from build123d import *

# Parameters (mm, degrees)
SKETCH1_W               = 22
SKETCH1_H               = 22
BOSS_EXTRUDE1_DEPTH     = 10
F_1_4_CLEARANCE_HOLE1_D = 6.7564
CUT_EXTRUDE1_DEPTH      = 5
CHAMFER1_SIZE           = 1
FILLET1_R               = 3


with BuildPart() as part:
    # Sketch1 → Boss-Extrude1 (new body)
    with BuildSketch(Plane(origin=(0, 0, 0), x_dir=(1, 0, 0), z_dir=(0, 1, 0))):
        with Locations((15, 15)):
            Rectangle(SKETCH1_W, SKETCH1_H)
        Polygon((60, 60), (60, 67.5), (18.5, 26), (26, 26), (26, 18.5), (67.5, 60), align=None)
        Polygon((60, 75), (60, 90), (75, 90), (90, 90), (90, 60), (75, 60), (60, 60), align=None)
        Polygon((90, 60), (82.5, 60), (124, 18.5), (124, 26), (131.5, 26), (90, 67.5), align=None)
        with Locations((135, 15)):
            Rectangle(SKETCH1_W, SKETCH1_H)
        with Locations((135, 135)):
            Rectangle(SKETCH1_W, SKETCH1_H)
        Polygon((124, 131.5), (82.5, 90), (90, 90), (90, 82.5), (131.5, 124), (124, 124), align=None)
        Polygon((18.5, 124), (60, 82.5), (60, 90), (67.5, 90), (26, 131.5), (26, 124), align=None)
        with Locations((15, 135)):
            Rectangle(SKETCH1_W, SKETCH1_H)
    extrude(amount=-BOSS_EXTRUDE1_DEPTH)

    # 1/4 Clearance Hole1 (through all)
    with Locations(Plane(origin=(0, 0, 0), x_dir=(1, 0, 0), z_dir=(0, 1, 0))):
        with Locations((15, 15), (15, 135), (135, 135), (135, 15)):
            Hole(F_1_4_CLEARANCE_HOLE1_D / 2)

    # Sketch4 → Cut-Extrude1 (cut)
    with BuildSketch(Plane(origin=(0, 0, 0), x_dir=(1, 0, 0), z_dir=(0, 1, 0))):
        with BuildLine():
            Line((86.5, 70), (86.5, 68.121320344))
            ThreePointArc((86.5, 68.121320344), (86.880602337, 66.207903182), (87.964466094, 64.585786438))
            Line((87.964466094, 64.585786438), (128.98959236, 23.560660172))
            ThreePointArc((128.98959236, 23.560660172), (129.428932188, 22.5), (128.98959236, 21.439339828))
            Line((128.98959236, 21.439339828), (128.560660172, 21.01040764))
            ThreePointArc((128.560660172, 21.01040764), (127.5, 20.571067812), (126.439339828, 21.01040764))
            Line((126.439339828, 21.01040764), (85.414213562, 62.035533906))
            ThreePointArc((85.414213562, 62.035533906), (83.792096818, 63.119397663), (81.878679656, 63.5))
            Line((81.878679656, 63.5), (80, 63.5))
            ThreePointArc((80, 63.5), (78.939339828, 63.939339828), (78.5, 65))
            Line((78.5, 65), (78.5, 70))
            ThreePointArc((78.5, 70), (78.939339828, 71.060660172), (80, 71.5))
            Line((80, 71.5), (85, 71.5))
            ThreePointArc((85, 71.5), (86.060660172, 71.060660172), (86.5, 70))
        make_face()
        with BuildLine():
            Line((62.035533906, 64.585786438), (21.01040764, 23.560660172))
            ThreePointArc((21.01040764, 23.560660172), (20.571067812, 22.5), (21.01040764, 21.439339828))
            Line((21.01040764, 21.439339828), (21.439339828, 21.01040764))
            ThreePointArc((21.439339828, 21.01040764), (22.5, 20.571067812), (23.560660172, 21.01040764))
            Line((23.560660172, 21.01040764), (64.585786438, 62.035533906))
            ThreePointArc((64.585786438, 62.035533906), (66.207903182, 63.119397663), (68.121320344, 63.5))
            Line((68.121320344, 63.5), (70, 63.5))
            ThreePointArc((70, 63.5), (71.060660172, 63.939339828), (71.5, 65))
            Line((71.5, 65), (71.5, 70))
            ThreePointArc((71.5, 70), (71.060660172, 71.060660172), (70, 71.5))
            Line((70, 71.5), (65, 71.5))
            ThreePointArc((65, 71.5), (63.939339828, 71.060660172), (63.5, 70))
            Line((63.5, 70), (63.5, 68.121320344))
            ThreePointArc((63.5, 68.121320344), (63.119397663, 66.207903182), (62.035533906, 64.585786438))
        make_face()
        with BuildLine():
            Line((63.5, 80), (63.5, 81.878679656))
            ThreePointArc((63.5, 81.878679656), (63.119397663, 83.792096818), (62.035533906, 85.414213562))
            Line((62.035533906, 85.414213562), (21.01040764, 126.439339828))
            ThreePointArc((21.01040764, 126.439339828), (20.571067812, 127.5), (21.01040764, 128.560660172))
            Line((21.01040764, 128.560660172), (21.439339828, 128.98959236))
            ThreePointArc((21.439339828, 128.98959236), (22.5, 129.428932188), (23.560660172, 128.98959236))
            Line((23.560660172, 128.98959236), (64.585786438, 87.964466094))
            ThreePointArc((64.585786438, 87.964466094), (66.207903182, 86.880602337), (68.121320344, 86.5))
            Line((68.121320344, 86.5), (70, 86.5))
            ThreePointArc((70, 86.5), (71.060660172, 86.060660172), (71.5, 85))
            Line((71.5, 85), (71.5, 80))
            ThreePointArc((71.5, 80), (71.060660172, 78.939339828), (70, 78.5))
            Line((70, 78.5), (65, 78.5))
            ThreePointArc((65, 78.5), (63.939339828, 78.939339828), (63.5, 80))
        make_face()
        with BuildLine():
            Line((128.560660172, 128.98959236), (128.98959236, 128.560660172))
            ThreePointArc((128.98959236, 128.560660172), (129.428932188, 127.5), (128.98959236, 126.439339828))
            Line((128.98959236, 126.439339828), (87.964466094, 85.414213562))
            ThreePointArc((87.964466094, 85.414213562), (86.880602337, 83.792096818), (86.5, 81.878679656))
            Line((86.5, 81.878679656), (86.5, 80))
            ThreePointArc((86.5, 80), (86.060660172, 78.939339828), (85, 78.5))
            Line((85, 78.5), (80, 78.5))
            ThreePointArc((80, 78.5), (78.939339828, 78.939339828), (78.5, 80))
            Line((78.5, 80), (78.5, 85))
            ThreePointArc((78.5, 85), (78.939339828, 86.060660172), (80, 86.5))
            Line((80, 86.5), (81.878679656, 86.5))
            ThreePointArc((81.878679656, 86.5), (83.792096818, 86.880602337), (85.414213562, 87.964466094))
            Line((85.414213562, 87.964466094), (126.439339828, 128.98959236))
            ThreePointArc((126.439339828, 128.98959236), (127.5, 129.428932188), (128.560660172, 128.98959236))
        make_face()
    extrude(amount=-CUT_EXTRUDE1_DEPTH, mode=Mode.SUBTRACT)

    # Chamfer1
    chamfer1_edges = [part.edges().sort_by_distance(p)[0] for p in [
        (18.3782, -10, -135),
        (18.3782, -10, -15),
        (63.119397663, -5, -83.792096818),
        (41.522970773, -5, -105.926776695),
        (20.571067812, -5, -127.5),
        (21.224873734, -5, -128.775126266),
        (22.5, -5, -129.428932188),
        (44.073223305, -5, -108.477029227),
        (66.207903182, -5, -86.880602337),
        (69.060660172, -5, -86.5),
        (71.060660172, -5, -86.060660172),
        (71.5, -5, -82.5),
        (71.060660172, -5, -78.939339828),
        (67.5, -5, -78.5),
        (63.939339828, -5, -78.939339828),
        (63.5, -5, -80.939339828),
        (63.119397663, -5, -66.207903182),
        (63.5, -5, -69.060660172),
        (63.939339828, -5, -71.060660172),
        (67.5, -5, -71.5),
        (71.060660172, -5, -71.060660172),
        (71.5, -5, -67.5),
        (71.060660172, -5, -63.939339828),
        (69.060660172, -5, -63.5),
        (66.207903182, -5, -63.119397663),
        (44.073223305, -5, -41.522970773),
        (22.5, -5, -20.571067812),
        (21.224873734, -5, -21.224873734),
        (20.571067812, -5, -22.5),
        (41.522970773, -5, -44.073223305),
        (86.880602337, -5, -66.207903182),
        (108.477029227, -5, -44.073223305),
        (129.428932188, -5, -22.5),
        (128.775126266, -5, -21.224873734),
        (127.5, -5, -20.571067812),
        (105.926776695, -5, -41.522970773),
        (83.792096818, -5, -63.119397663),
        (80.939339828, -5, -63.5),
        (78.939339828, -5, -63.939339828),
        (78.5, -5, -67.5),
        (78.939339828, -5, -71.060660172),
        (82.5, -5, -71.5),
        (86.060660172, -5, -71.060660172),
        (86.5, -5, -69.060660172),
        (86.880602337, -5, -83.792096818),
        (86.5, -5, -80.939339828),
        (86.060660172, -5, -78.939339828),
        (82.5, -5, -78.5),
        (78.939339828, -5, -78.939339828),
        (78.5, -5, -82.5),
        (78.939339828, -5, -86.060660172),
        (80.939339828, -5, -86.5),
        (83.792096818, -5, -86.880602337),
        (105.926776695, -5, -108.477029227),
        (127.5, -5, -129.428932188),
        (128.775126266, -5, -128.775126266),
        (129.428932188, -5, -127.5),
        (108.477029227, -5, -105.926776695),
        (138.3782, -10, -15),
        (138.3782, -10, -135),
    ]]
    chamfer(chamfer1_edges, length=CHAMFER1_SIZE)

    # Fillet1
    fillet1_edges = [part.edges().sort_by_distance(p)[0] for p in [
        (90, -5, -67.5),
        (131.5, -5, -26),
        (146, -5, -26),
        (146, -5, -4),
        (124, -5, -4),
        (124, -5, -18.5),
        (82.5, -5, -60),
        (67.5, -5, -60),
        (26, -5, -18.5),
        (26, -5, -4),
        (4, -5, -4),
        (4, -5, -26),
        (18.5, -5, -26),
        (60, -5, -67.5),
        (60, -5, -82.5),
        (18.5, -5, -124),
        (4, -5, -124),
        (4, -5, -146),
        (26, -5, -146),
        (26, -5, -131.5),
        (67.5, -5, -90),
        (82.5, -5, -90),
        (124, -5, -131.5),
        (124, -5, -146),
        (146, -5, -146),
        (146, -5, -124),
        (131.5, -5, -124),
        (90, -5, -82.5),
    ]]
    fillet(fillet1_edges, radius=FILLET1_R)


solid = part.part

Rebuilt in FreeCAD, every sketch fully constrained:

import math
import FreeCAD as App
import Part
import Sketcher
Q = App.Units.Quantity


def edges_at(feature, points):
    """Names of the edges that pass closest to the given points."""
    edges = feature.Shape.Edges
    near = lambda p: min(range(len(edges)), key=lambda i: edges[i].distToShape(Part.Vertex(*p))[0])
    return sorted({f"Edge{near(p) + 1}" for p in points})

doc = App.newDocument("Part")
body = doc.addObject("PartDesign::Body", "Body")

# Sketch on XZ plane
sketch1 = body.newObject("Sketcher::SketchObject", "Sketch")
sketch1.AttachmentSupport = (doc.getObject("XZ_Plane"), [""])
sketch1.MapMode = "FlatFace"
sketch1.addGeometry(Part.LineSegment(App.Vector(4, -26, 0), App.Vector(4, -4, 0)), False)
sketch1.addGeometry(Part.LineSegment(App.Vector(4, -4, 0), App.Vector(26, -4, 0)), False)
sketch1.addGeometry(Part.LineSegment(App.Vector(26, -4, 0), App.Vector(26, -18, 0)), False)
sketch1.addGeometry(Part.LineSegment(App.Vector(26, -18, 0), App.Vector(68, -60, 0)), False)
sketch1.addGeometry(Part.LineSegment(App.Vector(68, -60, 0), App.Vector(82, -60, 0)), False)
sketch1.addGeometry(Part.LineSegment(App.Vector(82, -60, 0), App.Vector(124, -18, 0)), False)
sketch1.addGeometry(Part.LineSegment(App.Vector(124, -18, 0), App.Vector(124, -4, 0)), False)
sketch1.addGeometry(Part.LineSegment(App.Vector(124, -4, 0), App.Vector(146, -4, 0)), False)
sketch1.addGeometry(Part.LineSegment(App.Vector(146, -4, 0), App.Vector(146, -26, 0)), False)
sketch1.addGeometry(Part.LineSegment(App.Vector(146, -26, 0), App.Vector(132, -26, 0)), False)
sketch1.addGeometry(Part.LineSegment(App.Vector(132, -26, 0), App.Vector(90, -68, 0)), False)
sketch1.addGeometry(Part.LineSegment(App.Vector(90, -68, 0), App.Vector(90, -82, 0)), False)
sketch1.addGeometry(Part.LineSegment(App.Vector(90, -82, 0), App.Vector(132, -124, 0)), False)
sketch1.addGeometry(Part.LineSegment(App.Vector(132, -124, 0), App.Vector(146, -124, 0)), False)
sketch1.addGeometry(Part.LineSegment(App.Vector(146, -124, 0), App.Vector(146, -146, 0)), False)
sketch1.addGeometry(Part.LineSegment(App.Vector(146, -146, 0), App.Vector(124, -146, 0)), False)
sketch1.addGeometry(Part.LineSegment(App.Vector(124, -146, 0), App.Vector(124, -132, 0)), False)
sketch1.addGeometry(Part.LineSegment(App.Vector(124, -132, 0), App.Vector(82, -90, 0)), False)
sketch1.addGeometry(Part.LineSegment(App.Vector(82, -90, 0), App.Vector(68, -90, 0)), False)
sketch1.addGeometry(Part.LineSegment(App.Vector(68, -90, 0), App.Vector(26, -132, 0)), False)
sketch1.addGeometry(Part.LineSegment(App.Vector(26, -132, 0), App.Vector(26, -146, 0)), False)
sketch1.addGeometry(Part.LineSegment(App.Vector(26, -146, 0), App.Vector(4, -146, 0)), False)
sketch1.addGeometry(Part.LineSegment(App.Vector(4, -146, 0), App.Vector(4, -124, 0)), False)
sketch1.addGeometry(Part.LineSegment(App.Vector(4, -124, 0), App.Vector(18, -124, 0)), False)
sketch1.addGeometry(Part.LineSegment(App.Vector(18, -124, 0), App.Vector(60, -82, 0)), False)
sketch1.addGeometry(Part.LineSegment(App.Vector(60, -82, 0), App.Vector(60, -68, 0)), False)
sketch1.addGeometry(Part.LineSegment(App.Vector(60, -68, 0), App.Vector(18, -26, 0)), False)
sketch1.addGeometry(Part.LineSegment(App.Vector(18, -26, 0), App.Vector(4, -26, 0)), False)
sketch1.addConstraint(Sketcher.Constraint("Coincident", 0, 2, 1, 1))
sketch1.addConstraint(Sketcher.Constraint("Coincident", 1, 2, 2, 1))
sketch1.addConstraint(Sketcher.Constraint("Coincident", 2, 2, 3, 1))
sketch1.addConstraint(Sketcher.Constraint("Coincident", 3, 2, 4, 1))
sketch1.addConstraint(Sketcher.Constraint("Coincident", 4, 2, 5, 1))
sketch1.addConstraint(Sketcher.Constraint("Coincident", 5, 2, 6, 1))
sketch1.addConstraint(Sketcher.Constraint("Coincident", 6, 2, 7, 1))
sketch1.addConstraint(Sketcher.Constraint("Coincident", 7, 2, 8, 1))
sketch1.addConstraint(Sketcher.Constraint("Coincident", 8, 2, 9, 1))
sketch1.addConstraint(Sketcher.Constraint("Coincident", 9, 2, 10, 1))
sketch1.addConstraint(Sketcher.Constraint("Coincident", 10, 2, 11, 1))
sketch1.addConstraint(Sketcher.Constraint("Coincident", 11, 2, 12, 1))
sketch1.addConstraint(Sketcher.Constraint("Coincident", 12, 2, 13, 1))
sketch1.addConstraint(Sketcher.Constraint("Coincident", 13, 2, 14, 1))
sketch1.addConstraint(Sketcher.Constraint("Coincident", 14, 2, 15, 1))
sketch1.addConstraint(Sketcher.Constraint("Coincident", 15, 2, 16, 1))
sketch1.addConstraint(Sketcher.Constraint("Coincident", 16, 2, 17, 1))
sketch1.addConstraint(Sketcher.Constraint("Coincident", 17, 2, 18, 1))
sketch1.addConstraint(Sketcher.Constraint("Coincident", 18, 2, 19, 1))
sketch1.addConstraint(Sketcher.Constraint("Coincident", 19, 2, 20, 1))
sketch1.addConstraint(Sketcher.Constraint("Coincident", 20, 2, 21, 1))
sketch1.addConstraint(Sketcher.Constraint("Coincident", 21, 2, 22, 1))
sketch1.addConstraint(Sketcher.Constraint("Coincident", 22, 2, 23, 1))
sketch1.addConstraint(Sketcher.Constraint("Coincident", 23, 2, 24, 1))
sketch1.addConstraint(Sketcher.Constraint("Coincident", 24, 2, 25, 1))
sketch1.addConstraint(Sketcher.Constraint("Coincident", 25, 2, 26, 1))
sketch1.addConstraint(Sketcher.Constraint("Coincident", 26, 2, 27, 1))
sketch1.addConstraint(Sketcher.Constraint("Coincident", 27, 2, 0, 1))
sketch1.addConstraint(Sketcher.Constraint("Vertical", 0))
sketch1.addConstraint(Sketcher.Constraint("Horizontal", 1))
sketch1.addConstraint(Sketcher.Constraint("Vertical", 2))
sketch1.addConstraint(Sketcher.Constraint("Horizontal", 4))
sketch1.addConstraint(Sketcher.Constraint("Vertical", 6))
sketch1.addConstraint(Sketcher.Constraint("Horizontal", 7))
sketch1.addConstraint(Sketcher.Constraint("Vertical", 8))
sketch1.addConstraint(Sketcher.Constraint("Horizontal", 9))
sketch1.addConstraint(Sketcher.Constraint("Vertical", 11))
sketch1.addConstraint(Sketcher.Constraint("Horizontal", 13))
sketch1.addConstraint(Sketcher.Constraint("Vertical", 14))
sketch1.addConstraint(Sketcher.Constraint("Horizontal", 15))
sketch1.addConstraint(Sketcher.Constraint("Vertical", 16))
sketch1.addConstraint(Sketcher.Constraint("Horizontal", 18))
sketch1.addConstraint(Sketcher.Constraint("Vertical", 20))
sketch1.addConstraint(Sketcher.Constraint("Horizontal", 21))
sketch1.addConstraint(Sketcher.Constraint("Vertical", 22))
sketch1.addConstraint(Sketcher.Constraint("Horizontal", 23))
sketch1.addConstraint(Sketcher.Constraint("Vertical", 25))
sketch1.addConstraint(Sketcher.Constraint("Horizontal", 27))
sketch1.addConstraint(Sketcher.Constraint("Perpendicular", 3, 5))
sketch1.addConstraint(Sketcher.Constraint("Parallel", 5, 10))
sketch1.addConstraint(Sketcher.Constraint("Perpendicular", 10, 12))
sketch1.addConstraint(Sketcher.Constraint("Parallel", 12, 17))
sketch1.addConstraint(Sketcher.Constraint("Perpendicular", 17, 19))
sketch1.addConstraint(Sketcher.Constraint("Parallel", 19, 24))
sketch1.addConstraint(Sketcher.Constraint("Perpendicular", 24, 26))
sketch1.addConstraint(Sketcher.Constraint("Horizontal", 2, 2, 5, 2))
sketch1.addConstraint(Sketcher.Constraint("Horizontal", 1, 2, 6, 2))
sketch1.addConstraint(Sketcher.Constraint("Horizontal", 16, 2, 19, 2))
sketch1.addConstraint(Sketcher.Constraint("Horizontal", 15, 2, 20, 2))
sketch1.addConstraint(Sketcher.Constraint("Horizontal", 13, 2, 22, 2))
sketch1.addConstraint(Sketcher.Constraint("Horizontal", 11, 2, 24, 2))
sketch1.addConstraint(Sketcher.Constraint("Horizontal", 10, 2, 25, 2))
sketch1.addConstraint(Sketcher.Constraint("Horizontal", 9, 2, 26, 2))
sketch1.addConstraint(Sketcher.Constraint("Vertical", 9, 2, 12, 2))
sketch1.addConstraint(Sketcher.Constraint("Vertical", 8, 2, 13, 2))
sketch1.addConstraint(Sketcher.Constraint("Vertical", 6, 2, 15, 2))
sketch1.addConstraint(Sketcher.Constraint("Vertical", 4, 2, 17, 2))
sketch1.addConstraint(Sketcher.Constraint("Vertical", 3, 2, 18, 2))
sketch1.addConstraint(Sketcher.Constraint("Vertical", 2, 2, 19, 2))
sketch1.addConstraint(Sketcher.Constraint("Vertical", 0, 2, 21, 2))
sketch1.addConstraint(Sketcher.Constraint("Equal", 1, 7))
sketch1.addConstraint(Sketcher.Constraint("Equal", 13, 23))
sketch1.addConstraint(Sketcher.Constraint("Equal", 21, 0))
sketch1.addConstraint(Sketcher.Constraint("Equal", 27, 2))
sketch1.addConstraint(Sketcher.Constraint("Equal", 18, 11))
sketch1.addConstraint(Sketcher.Constraint("Equal", 8, 14))
sketch1.addConstraint(Sketcher.Constraint("Equal", 6, 16))
sketch1.addConstraint(Sketcher.Constraint("Equal", 5, 10))
sketch1.addConstraint(Sketcher.Constraint("DistanceX", 1, 1, 1, 2, Q("22 mm")))
sketch1.addConstraint(Sketcher.Constraint("DistanceX", 4, 1, 4, 2, Q("15 mm")))
sketch1.addConstraint(Sketcher.Constraint("DistanceX", 9, 2, 9, 1, Q("14.5 mm")))
sketch1.addConstraint(Sketcher.Constraint("DistanceX", -1, 1, 0, 2, Q("4 mm")))
sketch1.addConstraint(Sketcher.Constraint("DistanceY", 0, 2, -1, 1, Q("4 mm")))
sketch1.addConstraint(Sketcher.Constraint("DistanceY", 3, 2, -1, 1, Q("60 mm")))
pad1 = body.newObject("PartDesign::Pad", "Pad")
pad1.Profile = sketch1
pad1.Length = 10

# Sketch on XZ plane
sketch2 = body.newObject("Sketcher::SketchObject", "Sketch001")
sketch2.AttachmentSupport = (doc.getObject("XZ_Plane"), [""])
sketch2.MapMode = "FlatFace"
sketch2.addGeometry(Part.Circle(App.Vector(15, -15, 0), App.Vector(0, 0, 1), 3.4), False)
sketch2.addGeometry(Part.Circle(App.Vector(15, -135, 0), App.Vector(0, 0, 1), 3.4), False)
sketch2.addGeometry(Part.Circle(App.Vector(135, -135, 0), App.Vector(0, 0, 1), 3.4), False)
sketch2.addGeometry(Part.Circle(App.Vector(135, -15, 0), App.Vector(0, 0, 1), 3.4), False)
sketch2.addConstraint(Sketcher.Constraint("Equal", 0, 1))
sketch2.addConstraint(Sketcher.Constraint("Equal", 1, 2))
sketch2.addConstraint(Sketcher.Constraint("Equal", 2, 3))
sketch2.addConstraint(Sketcher.Constraint("Horizontal", 1, 3, 2, 3))
sketch2.addConstraint(Sketcher.Constraint("Horizontal", 0, 3, 3, 3))
sketch2.addConstraint(Sketcher.Constraint("Vertical", 0, 3, 1, 3))
sketch2.addConstraint(Sketcher.Constraint("Vertical", 2, 3, 3, 3))
sketch2.addConstraint(Sketcher.Constraint("DistanceX", -1, 1, 0, 3, Q("15 mm")))
sketch2.addConstraint(Sketcher.Constraint("DistanceY", 0, 3, -1, 1, Q("15 mm")))
sketch2.addConstraint(Sketcher.Constraint("DistanceY", 1, 3, -1, 1, Q("135 mm")))
sketch2.addConstraint(Sketcher.Constraint("DistanceX", -1, 1, 2, 3, Q("135 mm")))
sketch2.addConstraint(Sketcher.Constraint("Diameter", 0, Q("6.7564 mm")))
doc.recompute()
hole = body.newObject("PartDesign::Hole", "Hole")
hole.Profile = sketch2
hole.ThreadType = "None"
hole.Diameter = 6.7564
hole.DepthType = "ThroughAll"
hole.Reversed = True

# Sketch on XZ plane
sketch3 = body.newObject("Sketcher::SketchObject", "Sketch002")
sketch3.AttachmentSupport = (doc.getObject("XZ_Plane"), [""])
sketch3.MapMode = "FlatFace"
sketch3.addGeometry(Part.LineSegment(App.Vector(86.5, -68.1, 0), App.Vector(86.5, -70, 0)), False)
sketch3.addGeometry(Part.ArcOfCircle(Part.Circle(App.Vector(85, -70, 0), App.Vector(0, 0, 1), 1.5), math.radians(-90), math.radians(0)), False)
sketch3.addGeometry(Part.LineSegment(App.Vector(85, -71.5, 0), App.Vector(80, -71.5, 0)), False)
sketch3.addGeometry(Part.ArcOfCircle(Part.Circle(App.Vector(80, -70, 0), App.Vector(0, 0, 1), 1.5), math.radians(180), math.radians(270)), False)
sketch3.addGeometry(Part.LineSegment(App.Vector(78.5, -70, 0), App.Vector(78.5, -65, 0)), False)
sketch3.addGeometry(Part.ArcOfCircle(Part.Circle(App.Vector(80, -65, 0), App.Vector(0, 0, 1), 1.5), math.radians(90), math.radians(180)), False)
sketch3.addGeometry(Part.LineSegment(App.Vector(80, -63.5, 0), App.Vector(81.9, -63.5, 0)), False)
sketch3.addGeometry(Part.ArcOfCircle(Part.Circle(App.Vector(81.9, -58.5, 0), App.Vector(0, 0, 1), 5), math.radians(-90), math.radians(-45)), False)
sketch3.addGeometry(Part.LineSegment(App.Vector(85.4, -62, 0), App.Vector(126.4, -21, 0)), False)
sketch3.addGeometry(Part.ArcOfCircle(Part.Circle(App.Vector(127.5, -22.1, 0), App.Vector(0, 0, 1), 1.5), math.radians(45), math.radians(135)), False)
sketch3.addGeometry(Part.LineSegment(App.Vector(128.6, -21, 0), App.Vector(129, -21.4, 0)), False)
sketch3.addGeometry(Part.ArcOfCircle(Part.Circle(App.Vector(127.9, -22.5, 0), App.Vector(0, 0, 1), 1.5), math.radians(-45), math.radians(45)), False)
sketch3.addGeometry(Part.LineSegment(App.Vector(129, -23.6, 0), App.Vector(88, -64.6, 0)), False)
sketch3.addGeometry(Part.ArcOfCircle(Part.Circle(App.Vector(91.5, -68.1, 0), App.Vector(0, 0, 1), 5), math.radians(135), math.radians(180)), False)
sketch3.addGeometry(Part.LineSegment(App.Vector(62, -64.6, 0), App.Vector(21, -23.6, 0)), False)
sketch3.addGeometry(Part.ArcOfCircle(Part.Circle(App.Vector(22.1, -22.5, 0), App.Vector(0, 0, 1), 1.5), math.radians(135), math.radians(225)), False)
sketch3.addGeometry(Part.LineSegment(App.Vector(21, -21.4, 0), App.Vector(21.4, -21, 0)), False)
sketch3.addGeometry(Part.ArcOfCircle(Part.Circle(App.Vector(22.5, -22.1, 0), App.Vector(0, 0, 1), 1.5), math.radians(45), math.radians(135)), False)
sketch3.addGeometry(Part.LineSegment(App.Vector(23.6, -21, 0), App.Vector(64.6, -62, 0)), False)
sketch3.addGeometry(Part.ArcOfCircle(Part.Circle(App.Vector(68.1, -58.5, 0), App.Vector(0, 0, 1), 5), math.radians(-135), math.radians(-90)), False)
sketch3.addGeometry(Part.LineSegment(App.Vector(68.1, -63.5, 0), App.Vector(70, -63.5, 0)), False)
sketch3.addGeometry(Part.ArcOfCircle(Part.Circle(App.Vector(70, -65, 0), App.Vector(0, 0, 1), 1.5), math.radians(0), math.radians(90)), False)
sketch3.addGeometry(Part.LineSegment(App.Vector(71.5, -65, 0), App.Vector(71.5, -70, 0)), False)
sketch3.addGeometry(Part.ArcOfCircle(Part.Circle(App.Vector(70, -70, 0), App.Vector(0, 0, 1), 1.5), math.radians(-90), math.radians(0)), False)
sketch3.addGeometry(Part.LineSegment(App.Vector(70, -71.5, 0), App.Vector(65, -71.5, 0)), False)
sketch3.addGeometry(Part.ArcOfCircle(Part.Circle(App.Vector(65, -70, 0), App.Vector(0, 0, 1), 1.5), math.radians(180), math.radians(270)), False)
sketch3.addGeometry(Part.LineSegment(App.Vector(63.5, -70, 0), App.Vector(63.5, -68.1, 0)), False)
sketch3.addGeometry(Part.ArcOfCircle(Part.Circle(App.Vector(58.5, -68.1, 0), App.Vector(0, 0, 1), 5), math.radians(0), math.radians(45)), False)
sketch3.addGeometry(Part.LineSegment(App.Vector(63.5, -81.9, 0), App.Vector(63.5, -80, 0)), False)
sketch3.addGeometry(Part.ArcOfCircle(Part.Circle(App.Vector(65, -80, 0), App.Vector(0, 0, 1), 1.5), math.radians(90), math.radians(180)), False)
sketch3.addGeometry(Part.LineSegment(App.Vector(65, -78.5, 0), App.Vector(70, -78.5, 0)), False)
sketch3.addGeometry(Part.ArcOfCircle(Part.Circle(App.Vector(70, -80, 0), App.Vector(0, 0, 1), 1.5), math.radians(0), math.radians(90)), False)
sketch3.addGeometry(Part.LineSegment(App.Vector(71.5, -80, 0), App.Vector(71.5, -85, 0)), False)
sketch3.addGeometry(Part.ArcOfCircle(Part.Circle(App.Vector(70, -85, 0), App.Vector(0, 0, 1), 1.5), math.radians(-90), math.radians(0)), False)
sketch3.addGeometry(Part.LineSegment(App.Vector(70, -86.5, 0), App.Vector(68.1, -86.5, 0)), False)
sketch3.addGeometry(Part.ArcOfCircle(Part.Circle(App.Vector(68.1, -91.5, 0), App.Vector(0, 0, 1), 5), math.radians(90), math.radians(135)), False)
sketch3.addGeometry(Part.LineSegment(App.Vector(64.6, -88, 0), App.Vector(23.6, -129, 0)), False)
sketch3.addGeometry(Part.ArcOfCircle(Part.Circle(App.Vector(22.5, -127.9, 0), App.Vector(0, 0, 1), 1.5), math.radians(-135), math.radians(-45)), False)
sketch3.addGeometry(Part.LineSegment(App.Vector(21.4, -129, 0), App.Vector(21, -128.6, 0)), False)
sketch3.addGeometry(Part.ArcOfCircle(Part.Circle(App.Vector(22.1, -127.5, 0), App.Vector(0, 0, 1), 1.5), math.radians(135), math.radians(225)), False)
sketch3.addGeometry(Part.LineSegment(App.Vector(21, -126.4, 0), App.Vector(62, -85.4, 0)), False)
sketch3.addGeometry(Part.ArcOfCircle(Part.Circle(App.Vector(58.5, -81.9, 0), App.Vector(0, 0, 1), 5), math.radians(-45), math.radians(0)), False)
sketch3.addGeometry(Part.LineSegment(App.Vector(129, -128.6, 0), App.Vector(128.6, -129, 0)), False)
sketch3.addGeometry(Part.ArcOfCircle(Part.Circle(App.Vector(127.5, -127.9, 0), App.Vector(0, 0, 1), 1.5), math.radians(-135), math.radians(-45)), False)
sketch3.addGeometry(Part.LineSegment(App.Vector(126.4, -129, 0), App.Vector(85.4, -88, 0)), False)
sketch3.addGeometry(Part.ArcOfCircle(Part.Circle(App.Vector(81.9, -91.5, 0), App.Vector(0, 0, 1), 5), math.radians(45), math.radians(90)), False)
sketch3.addGeometry(Part.LineSegment(App.Vector(81.9, -86.5, 0), App.Vector(80, -86.5, 0)), False)
sketch3.addGeometry(Part.ArcOfCircle(Part.Circle(App.Vector(80, -85, 0), App.Vector(0, 0, 1), 1.5), math.radians(180), math.radians(270)), False)
sketch3.addGeometry(Part.LineSegment(App.Vector(78.5, -85, 0), App.Vector(78.5, -80, 0)), False)
sketch3.addGeometry(Part.ArcOfCircle(Part.Circle(App.Vector(80, -80, 0), App.Vector(0, 0, 1), 1.5), math.radians(90), math.radians(180)), False)
sketch3.addGeometry(Part.LineSegment(App.Vector(80, -78.5, 0), App.Vector(85, -78.5, 0)), False)
sketch3.addGeometry(Part.ArcOfCircle(Part.Circle(App.Vector(85, -80, 0), App.Vector(0, 0, 1), 1.5), math.radians(0), math.radians(90)), False)
sketch3.addGeometry(Part.LineSegment(App.Vector(86.5, -80, 0), App.Vector(86.5, -81.9, 0)), False)
sketch3.addGeometry(Part.ArcOfCircle(Part.Circle(App.Vector(91.5, -81.9, 0), App.Vector(0, 0, 1), 5), math.radians(180), math.radians(225)), False)
sketch3.addGeometry(Part.LineSegment(App.Vector(88, -85.4, 0), App.Vector(129, -126.4, 0)), False)
sketch3.addGeometry(Part.ArcOfCircle(Part.Circle(App.Vector(127.9, -127.5, 0), App.Vector(0, 0, 1), 1.5), math.radians(-45), math.radians(45)), False)
sketch3.addConstraint(Sketcher.Constraint("Tangent", 0, 2, 1, 2))
sketch3.addConstraint(Sketcher.Constraint("Tangent", 1, 1, 2, 1))
sketch3.addConstraint(Sketcher.Constraint("Tangent", 2, 2, 3, 2))
sketch3.addConstraint(Sketcher.Constraint("Tangent", 3, 1, 4, 1))
sketch3.addConstraint(Sketcher.Constraint("Tangent", 4, 2, 5, 2))
sketch3.addConstraint(Sketcher.Constraint("Tangent", 5, 1, 6, 1))
sketch3.addConstraint(Sketcher.Constraint("Tangent", 6, 2, 7, 1))
sketch3.addConstraint(Sketcher.Constraint("Tangent", 7, 2, 8, 1))
sketch3.addConstraint(Sketcher.Constraint("Tangent", 8, 2, 9, 2))
sketch3.addConstraint(Sketcher.Constraint("Tangent", 9, 1, 10, 1))
sketch3.addConstraint(Sketcher.Constraint("Tangent", 10, 2, 11, 2))
sketch3.addConstraint(Sketcher.Constraint("Tangent", 11, 1, 12, 1))
sketch3.addConstraint(Sketcher.Constraint("Tangent", 12, 2, 13, 1))
sketch3.addConstraint(Sketcher.Constraint("Tangent", 13, 2, 0, 1))
sketch3.addConstraint(Sketcher.Constraint("Tangent", 14, 2, 15, 2))
sketch3.addConstraint(Sketcher.Constraint("Tangent", 15, 1, 16, 1))
sketch3.addConstraint(Sketcher.Constraint("Tangent", 16, 2, 17, 2))
sketch3.addConstraint(Sketcher.Constraint("Tangent", 17, 1, 18, 1))
sketch3.addConstraint(Sketcher.Constraint("Tangent", 18, 2, 19, 1))
sketch3.addConstraint(Sketcher.Constraint("Tangent", 19, 2, 20, 1))
sketch3.addConstraint(Sketcher.Constraint("Tangent", 20, 2, 21, 2))
sketch3.addConstraint(Sketcher.Constraint("Tangent", 21, 1, 22, 1))
sketch3.addConstraint(Sketcher.Constraint("Tangent", 22, 2, 23, 2))
sketch3.addConstraint(Sketcher.Constraint("Tangent", 23, 1, 24, 1))
sketch3.addConstraint(Sketcher.Constraint("Tangent", 24, 2, 25, 2))
sketch3.addConstraint(Sketcher.Constraint("Tangent", 25, 1, 26, 1))
sketch3.addConstraint(Sketcher.Constraint("Tangent", 26, 2, 27, 1))
sketch3.addConstraint(Sketcher.Constraint("Tangent", 27, 2, 14, 1))
sketch3.addConstraint(Sketcher.Constraint("Tangent", 28, 2, 29, 2))
sketch3.addConstraint(Sketcher.Constraint("Tangent", 29, 1, 30, 1))
sketch3.addConstraint(Sketcher.Constraint("Tangent", 30, 2, 31, 2))
sketch3.addConstraint(Sketcher.Constraint("Tangent", 31, 1, 32, 1))
sketch3.addConstraint(Sketcher.Constraint("Tangent", 32, 2, 33, 2))
sketch3.addConstraint(Sketcher.Constraint("Tangent", 33, 1, 34, 1))
sketch3.addConstraint(Sketcher.Constraint("Tangent", 34, 2, 35, 1))
sketch3.addConstraint(Sketcher.Constraint("Tangent", 35, 2, 36, 1))
sketch3.addConstraint(Sketcher.Constraint("Tangent", 36, 2, 37, 2))
sketch3.addConstraint(Sketcher.Constraint("Tangent", 37, 1, 38, 1))
sketch3.addConstraint(Sketcher.Constraint("Tangent", 38, 2, 39, 2))
sketch3.addConstraint(Sketcher.Constraint("Tangent", 39, 1, 40, 1))
sketch3.addConstraint(Sketcher.Constraint("Tangent", 40, 2, 41, 1))
sketch3.addConstraint(Sketcher.Constraint("Tangent", 41, 2, 28, 1))
sketch3.addConstraint(Sketcher.Constraint("Tangent", 42, 2, 43, 2))
sketch3.addConstraint(Sketcher.Constraint("Tangent", 43, 1, 44, 1))
sketch3.addConstraint(Sketcher.Constraint("Tangent", 44, 2, 45, 1))
sketch3.addConstraint(Sketcher.Constraint("Tangent", 45, 2, 46, 1))
sketch3.addConstraint(Sketcher.Constraint("Tangent", 46, 2, 47, 2))
sketch3.addConstraint(Sketcher.Constraint("Tangent", 47, 1, 48, 1))
sketch3.addConstraint(Sketcher.Constraint("Tangent", 48, 2, 49, 2))
sketch3.addConstraint(Sketcher.Constraint("Tangent", 49, 1, 50, 1))
sketch3.addConstraint(Sketcher.Constraint("Tangent", 50, 2, 51, 2))
sketch3.addConstraint(Sketcher.Constraint("Tangent", 51, 1, 52, 1))
sketch3.addConstraint(Sketcher.Constraint("Tangent", 52, 2, 53, 1))
sketch3.addConstraint(Sketcher.Constraint("Tangent", 53, 2, 54, 1))
sketch3.addConstraint(Sketcher.Constraint("Tangent", 54, 2, 55, 2))
sketch3.addConstraint(Sketcher.Constraint("Tangent", 55, 1, 42, 1))
sketch3.addConstraint(Sketcher.Constraint("Vertical", 0))
sketch3.addConstraint(Sketcher.Constraint("Horizontal", 2))
sketch3.addConstraint(Sketcher.Constraint("Vertical", 4))
sketch3.addConstraint(Sketcher.Constraint("Horizontal", 6))
sketch3.addConstraint(Sketcher.Constraint("Horizontal", 20))
sketch3.addConstraint(Sketcher.Constraint("Vertical", 22))
sketch3.addConstraint(Sketcher.Constraint("Horizontal", 24))
sketch3.addConstraint(Sketcher.Constraint("Vertical", 26))
sketch3.addConstraint(Sketcher.Constraint("Vertical", 28))
sketch3.addConstraint(Sketcher.Constraint("Horizontal", 30))
sketch3.addConstraint(Sketcher.Constraint("Vertical", 32))
sketch3.addConstraint(Sketcher.Constraint("Horizontal", 34))
sketch3.addConstraint(Sketcher.Constraint("Horizontal", 46))
sketch3.addConstraint(Sketcher.Constraint("Vertical", 48))
sketch3.addConstraint(Sketcher.Constraint("Horizontal", 50))
sketch3.addConstraint(Sketcher.Constraint("Vertical", 52))
sketch3.addConstraint(Sketcher.Constraint("Equal", 1, 3))
sketch3.addConstraint(Sketcher.Constraint("Equal", 3, 5))
sketch3.addConstraint(Sketcher.Constraint("Equal", 5, 9))
sketch3.addConstraint(Sketcher.Constraint("Equal", 9, 11))
sketch3.addConstraint(Sketcher.Constraint("Equal", 7, 13))
sketch3.addConstraint(Sketcher.Constraint("Equal", 11, 15))
sketch3.addConstraint(Sketcher.Constraint("Equal", 15, 17))
sketch3.addConstraint(Sketcher.Constraint("Equal", 13, 19))
sketch3.addConstraint(Sketcher.Constraint("Equal", 17, 21))
sketch3.addConstraint(Sketcher.Constraint("Equal", 21, 23))
sketch3.addConstraint(Sketcher.Constraint("Equal", 23, 25))
sketch3.addConstraint(Sketcher.Constraint("Equal", 19, 27))
sketch3.addConstraint(Sketcher.Constraint("Equal", 25, 29))
sketch3.addConstraint(Sketcher.Constraint("Equal", 29, 31))
sketch3.addConstraint(Sketcher.Constraint("Equal", 31, 33))
sketch3.addConstraint(Sketcher.Constraint("Equal", 27, 35))
sketch3.addConstraint(Sketcher.Constraint("Equal", 33, 37))
sketch3.addConstraint(Sketcher.Constraint("Equal", 37, 39))
sketch3.addConstraint(Sketcher.Constraint("Equal", 35, 41))
sketch3.addConstraint(Sketcher.Constraint("Equal", 39, 43))
sketch3.addConstraint(Sketcher.Constraint("Equal", 41, 45))
sketch3.addConstraint(Sketcher.Constraint("Equal", 43, 47))
sketch3.addConstraint(Sketcher.Constraint("Equal", 47, 49))
sketch3.addConstraint(Sketcher.Constraint("Equal", 49, 51))
sketch3.addConstraint(Sketcher.Constraint("Equal", 45, 53))
sketch3.addConstraint(Sketcher.Constraint("Equal", 51, 55))
sketch3.addConstraint(Sketcher.Constraint("Perpendicular", 8, 10))
sketch3.addConstraint(Sketcher.Constraint("Perpendicular", 10, 12))
sketch3.addConstraint(Sketcher.Constraint("Perpendicular", 12, 14))
sketch3.addConstraint(Sketcher.Constraint("Perpendicular", 14, 16))
sketch3.addConstraint(Sketcher.Constraint("Perpendicular", 16, 18))
sketch3.addConstraint(Sketcher.Constraint("Perpendicular", 18, 36))
sketch3.addConstraint(Sketcher.Constraint("Perpendicular", 36, 38))
sketch3.addConstraint(Sketcher.Constraint("Perpendicular", 38, 40))
sketch3.addConstraint(Sketcher.Constraint("Parallel", 40, 42))
sketch3.addConstraint(Sketcher.Constraint("Perpendicular", 42, 44))
sketch3.addConstraint(Sketcher.Constraint("Parallel", 44, 54))
sketch3.addConstraint(Sketcher.Constraint("Horizontal", 11, 3, 15, 3))
sketch3.addConstraint(Sketcher.Constraint("Horizontal", 9, 3, 17, 3))
sketch3.addConstraint(Sketcher.Constraint("Horizontal", 7, 3, 19, 3))
sketch3.addConstraint(Sketcher.Constraint("Horizontal", 3, 3, 23, 3))
sketch3.addConstraint(Sketcher.Constraint("Horizontal", 13, 3, 27, 3))
sketch3.addConstraint(Sketcher.Constraint("Horizontal", 37, 3, 43, 3))
sketch3.addConstraint(Sketcher.Constraint("Horizontal", 35, 3, 45, 3))
sketch3.addConstraint(Sketcher.Constraint("Horizontal", 31, 3, 49, 3))
sketch3.addConstraint(Sketcher.Constraint("Horizontal", 41, 3, 53, 3))
sketch3.addConstraint(Sketcher.Constraint("Horizontal", 39, 3, 55, 3))
sketch3.addConstraint(Sketcher.Constraint("Horizontal", 8, 2, 9, 1))
sketch3.addConstraint(Sketcher.Constraint("Vertical", 25, 3, 29, 3))
sketch3.addConstraint(Sketcher.Constraint("Vertical", 23, 3, 31, 3))
sketch3.addConstraint(Sketcher.Constraint("Vertical", 19, 3, 35, 3))
sketch3.addConstraint(Sketcher.Constraint("Vertical", 17, 3, 37, 3))
sketch3.addConstraint(Sketcher.Constraint("Vertical", 15, 3, 39, 3))
sketch3.addConstraint(Sketcher.Constraint("Vertical", 9, 3, 43, 3))
sketch3.addConstraint(Sketcher.Constraint("Vertical", 5, 3, 47, 3))
sketch3.addConstraint(Sketcher.Constraint("Equal", 6, 20))
sketch3.addConstraint(Sketcher.Constraint("Equal", 46, 0))
sketch3.addConstraint(Sketcher.Constraint("Equal", 50, 4))
sketch3.addConstraint(Sketcher.Constraint("Equal", 26, 28))
sketch3.addConstraint(Sketcher.Constraint("Radius", 7, Q("5 mm")))
sketch3.addConstraint(Sketcher.Constraint("Radius", 1, Q("1.5 mm")))
sketch3.addConstraint(Sketcher.Constraint("DistanceX", 2, 2, 2, 1, Q("5 mm")))
sketch3.addConstraint(Sketcher.Constraint("DistanceX", -1, 1, 1, 3, Q("85 mm")))
sketch3.addConstraint(Sketcher.Constraint("DistanceY", 1, 3, -1, 1, Q("70 mm")))
sketch3.addConstraint(Sketcher.Constraint("DistanceX", -1, 1, 21, 3, Q("70 mm")))
sketch3.addConstraint(Sketcher.Constraint("DistanceY", 29, 3, -1, 1, Q("80 mm")))
sketch3.addConstraint(Sketcher.Constraint("DistanceX", -1, 1, 9, 3, Q("127.5 mm")))
sketch3.addConstraint(Sketcher.Constraint("Distance", 10, Q("0.606602 mm")))
pocket1 = body.newObject("PartDesign::Pocket", "Pocket")
pocket1.Profile = sketch3
pocket1.Length = 5
pocket1.Reversed = True
doc.recompute()

chamfer = body.newObject("PartDesign::Chamfer", "Chamfer")
chamfer.Base = (pocket1, edges_at(pocket1, [
    (18.378, -10, -135),
    (18.378, -10, -15),
    (63.119, -5, -83.792),
    (41.523, -5, -105.927),
    (20.571, -5, -127.5),
    (21.225, -5, -128.775),
    (22.5, -5, -129.429),
    (44.073, -5, -108.477),
    (66.208, -5, -86.881),
    (69.061, -5, -86.5),
    (71.061, -5, -86.061),
    (71.5, -5, -82.5),
    (71.061, -5, -78.939),
    (67.5, -5, -78.5),
    (63.939, -5, -78.939),
    (63.5, -5, -80.939),
    (63.119, -5, -66.208),
    (63.5, -5, -69.061),
    (63.939, -5, -71.061),
    (67.5, -5, -71.5),
    (71.061, -5, -71.061),
    (71.5, -5, -67.5),
    (71.061, -5, -63.939),
    (69.061, -5, -63.5),
    (66.208, -5, -63.119),
    (44.073, -5, -41.523),
    (22.5, -5, -20.571),
    (21.225, -5, -21.225),
    (20.571, -5, -22.5),
    (41.523, -5, -44.073),
    (86.881, -5, -66.208),
    (108.477, -5, -44.073),
    (129.429, -5, -22.5),
    (128.775, -5, -21.225),
    (127.5, -5, -20.571),
    (105.927, -5, -41.523),
    (83.792, -5, -63.119),
    (80.939, -5, -63.5),
    (78.939, -5, -63.939),
    (78.5, -5, -67.5),
    (78.939, -5, -71.061),
    (82.5, -5, -71.5),
    (86.061, -5, -71.061),
    (86.5, -5, -69.061),
    (86.881, -5, -83.792),
    (86.5, -5, -80.939),
    (86.061, -5, -78.939),
    (82.5, -5, -78.5),
    (78.939, -5, -78.939),
    (78.5, -5, -82.5),
    (78.939, -5, -86.061),
    (80.939, -5, -86.5),
    (83.792, -5, -86.881),
    (105.927, -5, -108.477),
    (127.5, -5, -129.429),
    (128.775, -5, -128.775),
    (129.429, -5, -127.5),
    (108.477, -5, -105.927),
    (138.378, -10, -15),
    (138.378, -10, -135),
]))
chamfer.Size = 1
doc.recompute()

fillet = body.newObject("PartDesign::Fillet", "Fillet")
fillet.Base = (chamfer, edges_at(chamfer, [
    (90, -5, -67.5),
    (131.5, -5, -26),
    (146, -5, -26),
    (146, -5, -4),
    (124, -5, -4),
    (124, -5, -18.5),
    (82.5, -5, -60),
    (67.5, -5, -60),
    (26, -5, -18.5),
    (26, -5, -4),
    (4, -5, -4),
    (4, -5, -26),
    (18.5, -5, -26),
    (60, -5, -67.5),
    (60, -5, -82.5),
    (18.5, -5, -124),
    (4, -5, -124),
    (4, -5, -146),
    (26, -5, -146),
    (26, -5, -131.5),
    (67.5, -5, -90),
    (82.5, -5, -90),
    (124, -5, -131.5),
    (124, -5, -146),
    (146, -5, -146),
    (146, -5, -124),
    (131.5, -5, -124),
    (90, -5, -82.5),
]))
fillet.Radius = 3

doc.recompute()
